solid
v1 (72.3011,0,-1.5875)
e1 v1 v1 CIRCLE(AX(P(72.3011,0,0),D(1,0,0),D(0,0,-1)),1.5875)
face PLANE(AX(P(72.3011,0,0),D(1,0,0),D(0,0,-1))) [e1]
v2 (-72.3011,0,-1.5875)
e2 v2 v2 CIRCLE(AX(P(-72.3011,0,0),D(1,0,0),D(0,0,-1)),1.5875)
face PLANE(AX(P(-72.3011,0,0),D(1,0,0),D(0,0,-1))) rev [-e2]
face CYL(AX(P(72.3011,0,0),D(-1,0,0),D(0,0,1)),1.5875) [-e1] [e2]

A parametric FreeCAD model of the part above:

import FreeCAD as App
import Part
import Sketcher

V = App.Vector
Q = App.Units.Quantity

doc = App.newDocument("Part")
params = doc.addObject("Spreadsheet::Sheet", "Params")
for row, (alias, value) in enumerate([
    ("sketch1_diameter", "0.125 in"),
    ("pad1_length", "5.693 in"),
], start=1):
    params.set(f"A{row}", alias)
    params.set(f"B{row}", "=" + value)
    params.setAlias(f"B{row}", alias)

body = doc.addObject("PartDesign::Body", "Body")

# Sketch on YZ plane
sketch1 = doc.addObject("Sketcher::SketchObject", "Sketch")
body.addObject(sketch1)
sketch1.AttachmentSupport = (doc.YZ_Plane, [""])
sketch1.MapMode = "FlatFace"
sketch1.addGeometry(Part.Circle(V(0, 0, 0), V(0, 0, 1), 1.5875), False)
sketch1.addConstraint([
    Sketcher.Constraint("Coincident", 0, 3, -1, 1),
    Sketcher.Constraint("Diameter", 0, Q("0.125 in")),
])
sketch1.setExpression("Constraints[1]", "Params.sketch1_diameter")
pad1 = doc.addObject("PartDesign::Pad", "Pad")
body.addObject(pad1)
pad1.Profile = sketch1
pad1.setExpression("Length", "Params.pad1_length")
pad1.Midplane = True

doc.recompute()
